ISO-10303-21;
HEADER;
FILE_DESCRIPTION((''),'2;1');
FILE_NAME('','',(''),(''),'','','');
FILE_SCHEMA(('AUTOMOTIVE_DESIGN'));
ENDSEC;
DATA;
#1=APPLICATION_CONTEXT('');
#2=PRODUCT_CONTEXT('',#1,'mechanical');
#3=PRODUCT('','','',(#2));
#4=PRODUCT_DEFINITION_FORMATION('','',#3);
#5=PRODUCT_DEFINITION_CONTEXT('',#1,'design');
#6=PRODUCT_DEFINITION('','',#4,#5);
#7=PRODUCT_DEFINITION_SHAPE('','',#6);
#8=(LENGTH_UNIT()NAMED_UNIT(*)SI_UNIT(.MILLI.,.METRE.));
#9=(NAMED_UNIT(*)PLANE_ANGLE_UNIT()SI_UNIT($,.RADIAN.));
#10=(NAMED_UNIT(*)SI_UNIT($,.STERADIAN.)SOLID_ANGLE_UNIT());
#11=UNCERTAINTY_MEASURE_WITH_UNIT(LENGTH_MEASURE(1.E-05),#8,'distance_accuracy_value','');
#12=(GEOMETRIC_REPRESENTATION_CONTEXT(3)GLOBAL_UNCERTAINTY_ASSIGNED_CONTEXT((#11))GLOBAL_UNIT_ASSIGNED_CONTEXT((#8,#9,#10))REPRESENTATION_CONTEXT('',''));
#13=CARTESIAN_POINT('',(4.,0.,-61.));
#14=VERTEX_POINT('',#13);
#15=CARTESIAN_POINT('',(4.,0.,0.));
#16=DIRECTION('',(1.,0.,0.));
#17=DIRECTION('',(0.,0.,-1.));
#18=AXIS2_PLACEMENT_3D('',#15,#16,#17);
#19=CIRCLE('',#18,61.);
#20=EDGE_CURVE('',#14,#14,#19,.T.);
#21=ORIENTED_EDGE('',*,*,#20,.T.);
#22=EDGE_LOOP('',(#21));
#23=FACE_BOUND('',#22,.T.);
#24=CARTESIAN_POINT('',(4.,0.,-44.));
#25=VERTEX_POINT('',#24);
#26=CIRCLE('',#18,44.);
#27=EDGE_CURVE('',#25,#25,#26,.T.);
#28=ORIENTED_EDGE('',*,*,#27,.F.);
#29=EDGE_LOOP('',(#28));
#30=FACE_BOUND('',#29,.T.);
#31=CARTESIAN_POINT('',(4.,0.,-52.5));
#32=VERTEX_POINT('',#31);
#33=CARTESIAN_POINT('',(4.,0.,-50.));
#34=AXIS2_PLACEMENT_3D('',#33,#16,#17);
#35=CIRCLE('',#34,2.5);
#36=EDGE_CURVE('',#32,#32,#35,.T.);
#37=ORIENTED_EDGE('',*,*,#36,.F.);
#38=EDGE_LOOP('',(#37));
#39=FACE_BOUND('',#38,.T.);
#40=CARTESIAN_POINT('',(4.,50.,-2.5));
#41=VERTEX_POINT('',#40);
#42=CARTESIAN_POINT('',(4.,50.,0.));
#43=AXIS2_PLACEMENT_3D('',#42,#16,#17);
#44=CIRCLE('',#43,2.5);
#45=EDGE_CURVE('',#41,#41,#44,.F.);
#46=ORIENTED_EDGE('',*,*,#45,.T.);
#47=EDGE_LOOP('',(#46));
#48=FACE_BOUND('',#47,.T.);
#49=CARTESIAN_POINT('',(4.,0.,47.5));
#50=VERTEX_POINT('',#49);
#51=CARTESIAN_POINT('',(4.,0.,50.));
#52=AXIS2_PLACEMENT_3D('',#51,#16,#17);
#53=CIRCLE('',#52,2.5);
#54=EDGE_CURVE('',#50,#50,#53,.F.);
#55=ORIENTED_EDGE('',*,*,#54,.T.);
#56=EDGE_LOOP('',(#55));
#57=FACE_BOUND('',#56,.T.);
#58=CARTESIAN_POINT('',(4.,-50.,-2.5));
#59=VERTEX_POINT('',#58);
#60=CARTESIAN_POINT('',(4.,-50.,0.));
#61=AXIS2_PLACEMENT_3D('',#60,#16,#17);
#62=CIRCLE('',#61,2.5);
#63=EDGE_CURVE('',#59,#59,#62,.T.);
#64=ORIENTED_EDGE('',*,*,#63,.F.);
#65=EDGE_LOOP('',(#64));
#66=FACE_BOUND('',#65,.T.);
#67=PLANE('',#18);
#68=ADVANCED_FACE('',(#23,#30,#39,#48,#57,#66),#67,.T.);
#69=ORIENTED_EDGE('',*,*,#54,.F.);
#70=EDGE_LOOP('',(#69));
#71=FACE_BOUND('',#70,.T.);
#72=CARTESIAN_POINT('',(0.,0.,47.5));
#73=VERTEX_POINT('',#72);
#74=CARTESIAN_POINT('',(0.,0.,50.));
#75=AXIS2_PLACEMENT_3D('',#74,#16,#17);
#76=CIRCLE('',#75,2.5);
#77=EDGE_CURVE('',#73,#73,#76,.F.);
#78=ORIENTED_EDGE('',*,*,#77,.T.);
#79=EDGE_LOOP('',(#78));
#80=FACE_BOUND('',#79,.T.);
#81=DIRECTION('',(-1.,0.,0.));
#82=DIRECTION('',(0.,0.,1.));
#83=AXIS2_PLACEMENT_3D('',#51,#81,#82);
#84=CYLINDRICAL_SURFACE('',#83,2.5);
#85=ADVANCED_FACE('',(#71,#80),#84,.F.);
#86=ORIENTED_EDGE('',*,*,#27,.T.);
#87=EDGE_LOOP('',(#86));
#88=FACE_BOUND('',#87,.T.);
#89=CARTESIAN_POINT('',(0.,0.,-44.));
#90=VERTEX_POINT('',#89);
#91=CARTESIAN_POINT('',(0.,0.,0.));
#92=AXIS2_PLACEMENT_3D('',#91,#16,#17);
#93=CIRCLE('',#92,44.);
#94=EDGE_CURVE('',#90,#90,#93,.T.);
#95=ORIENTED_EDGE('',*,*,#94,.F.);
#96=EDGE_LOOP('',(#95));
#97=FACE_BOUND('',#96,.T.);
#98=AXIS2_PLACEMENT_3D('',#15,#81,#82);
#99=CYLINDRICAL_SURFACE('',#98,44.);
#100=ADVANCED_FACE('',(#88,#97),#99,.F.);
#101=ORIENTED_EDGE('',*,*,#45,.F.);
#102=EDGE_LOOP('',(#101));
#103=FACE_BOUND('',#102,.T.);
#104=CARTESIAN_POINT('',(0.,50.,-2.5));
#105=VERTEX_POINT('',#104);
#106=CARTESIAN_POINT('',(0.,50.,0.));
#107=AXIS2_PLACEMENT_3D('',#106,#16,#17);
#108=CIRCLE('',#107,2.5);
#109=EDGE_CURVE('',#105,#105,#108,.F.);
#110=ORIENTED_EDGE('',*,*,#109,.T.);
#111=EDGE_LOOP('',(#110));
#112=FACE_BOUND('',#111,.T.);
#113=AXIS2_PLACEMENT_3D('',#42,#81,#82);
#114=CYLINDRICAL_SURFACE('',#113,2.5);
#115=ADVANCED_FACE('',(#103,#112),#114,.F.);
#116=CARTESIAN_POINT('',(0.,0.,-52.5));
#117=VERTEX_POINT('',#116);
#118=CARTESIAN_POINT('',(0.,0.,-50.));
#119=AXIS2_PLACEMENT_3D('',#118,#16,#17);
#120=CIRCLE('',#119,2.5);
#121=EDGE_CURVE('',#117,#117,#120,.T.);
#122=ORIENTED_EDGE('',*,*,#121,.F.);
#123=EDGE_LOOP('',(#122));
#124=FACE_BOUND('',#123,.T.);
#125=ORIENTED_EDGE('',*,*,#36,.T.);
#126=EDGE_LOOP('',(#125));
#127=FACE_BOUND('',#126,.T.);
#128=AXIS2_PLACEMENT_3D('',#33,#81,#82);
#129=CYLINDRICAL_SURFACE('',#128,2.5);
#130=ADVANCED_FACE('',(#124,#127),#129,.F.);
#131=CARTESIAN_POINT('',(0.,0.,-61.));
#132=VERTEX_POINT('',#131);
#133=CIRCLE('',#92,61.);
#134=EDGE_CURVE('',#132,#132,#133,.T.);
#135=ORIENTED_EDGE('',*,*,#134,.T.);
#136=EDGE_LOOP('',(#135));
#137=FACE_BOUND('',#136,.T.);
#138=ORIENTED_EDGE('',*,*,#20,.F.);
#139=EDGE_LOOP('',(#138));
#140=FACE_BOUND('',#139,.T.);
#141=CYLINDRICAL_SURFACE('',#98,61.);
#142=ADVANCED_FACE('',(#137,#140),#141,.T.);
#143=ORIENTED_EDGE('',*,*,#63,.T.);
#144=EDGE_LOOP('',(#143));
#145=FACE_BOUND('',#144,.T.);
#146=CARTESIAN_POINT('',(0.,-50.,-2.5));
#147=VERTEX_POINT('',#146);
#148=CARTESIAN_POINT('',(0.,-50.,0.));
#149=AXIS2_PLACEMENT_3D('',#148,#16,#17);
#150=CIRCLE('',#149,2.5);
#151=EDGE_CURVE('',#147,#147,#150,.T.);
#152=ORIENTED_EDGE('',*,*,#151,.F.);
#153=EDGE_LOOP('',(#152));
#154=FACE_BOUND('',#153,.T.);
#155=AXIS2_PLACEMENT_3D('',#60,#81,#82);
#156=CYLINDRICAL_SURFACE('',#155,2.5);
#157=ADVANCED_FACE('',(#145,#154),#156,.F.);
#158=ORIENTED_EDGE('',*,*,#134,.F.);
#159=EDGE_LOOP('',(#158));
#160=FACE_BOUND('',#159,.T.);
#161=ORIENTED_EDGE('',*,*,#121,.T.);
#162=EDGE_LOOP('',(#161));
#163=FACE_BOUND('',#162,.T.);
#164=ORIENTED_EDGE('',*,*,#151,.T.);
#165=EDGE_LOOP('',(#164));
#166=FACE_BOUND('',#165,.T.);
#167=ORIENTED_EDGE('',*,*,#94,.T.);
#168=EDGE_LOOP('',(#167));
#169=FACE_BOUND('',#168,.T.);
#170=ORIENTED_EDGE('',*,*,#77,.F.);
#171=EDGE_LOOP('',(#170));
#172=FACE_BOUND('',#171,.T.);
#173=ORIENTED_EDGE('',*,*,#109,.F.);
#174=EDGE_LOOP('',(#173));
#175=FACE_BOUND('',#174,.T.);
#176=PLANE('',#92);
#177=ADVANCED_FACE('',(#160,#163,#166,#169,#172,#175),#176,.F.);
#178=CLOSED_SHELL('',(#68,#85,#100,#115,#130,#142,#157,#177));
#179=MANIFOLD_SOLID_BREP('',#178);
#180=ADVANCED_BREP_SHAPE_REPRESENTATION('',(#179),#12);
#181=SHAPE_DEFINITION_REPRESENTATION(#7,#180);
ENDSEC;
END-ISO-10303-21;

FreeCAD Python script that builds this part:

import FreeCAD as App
import Part
import Sketcher
from FreeCAD import Vector

doc = App.newDocument("Part")
body = doc.addObject("PartDesign::Body", "Body")

sketch1 = body.newObject("Sketcher::SketchObject", "Sketch")
sketch1.AttachmentSupport = (doc.getObject("YZ_Plane"), [""])
sketch1.MapMode = "FlatFace"
sketch1.addGeometry(Part.Circle(Vector(0, 0, 0), Vector(0, 0, 1), 61), False)
sketch1.addGeometry(Part.Circle(Vector(-50, 0, 0), Vector(0, 0, 1), 2.5), False)
sketch1.addGeometry(Part.Circle(Vector(0, 50, 0), Vector(0, 0, 1), 2.5), False)
sketch1.addGeometry(Part.Circle(Vector(0, 0, 0), Vector(0, 0, 1), 44), False)
sketch1.addGeometry(Part.Circle(Vector(0, -50, 0), Vector(0, 0, 1), 2.5), False)
sketch1.addGeometry(Part.Circle(Vector(50, 0, 0), Vector(0, 0, 1), 2.5), False)
sketch1.addConstraint(Sketcher.Constraint("Coincident", 0, 3, -1, 1))
sketch1.addConstraint(Sketcher.Constraint("Coincident", 3, 3, -1, 1))
sketch1.addConstraint(Sketcher.Constraint("Equal", 1, 2))
sketch1.addConstraint(Sketcher.Constraint("Equal", 2, 4))
sketch1.addConstraint(Sketcher.Constraint("Equal", 4, 5))
sketch1.addConstraint(Sketcher.Constraint("Symmetric", 2, 3, 4, 3, -1, 1))
sketch1.addConstraint(Sketcher.Constraint("Symmetric", 1, 3, 5, 3, -1, 1))
sketch1.addConstraint(Sketcher.Constraint("PointOnObject", 1, 3, -1))
sketch1.addConstraint(Sketcher.Constraint("PointOnObject", 2, 3, -2))
sketch1.addConstraint(Sketcher.Constraint("Diameter", 0, 122.0))
sketch1.addConstraint(Sketcher.Constraint("Diameter", 1, 5.0))
sketch1.addConstraint(Sketcher.Constraint("Diameter", 3, 88.0))
sketch1.addConstraint(Sketcher.Constraint("DistanceX", 1, 3, -1, 1, 50.0))
sketch1.addConstraint(Sketcher.Constraint("DistanceY", -1, 1, 2, 3, 50.0))
pad1 = body.newObject("PartDesign::Pad", "Pad")
pad1.Profile = sketch1
pad1.Length = 4

doc.recompute()
